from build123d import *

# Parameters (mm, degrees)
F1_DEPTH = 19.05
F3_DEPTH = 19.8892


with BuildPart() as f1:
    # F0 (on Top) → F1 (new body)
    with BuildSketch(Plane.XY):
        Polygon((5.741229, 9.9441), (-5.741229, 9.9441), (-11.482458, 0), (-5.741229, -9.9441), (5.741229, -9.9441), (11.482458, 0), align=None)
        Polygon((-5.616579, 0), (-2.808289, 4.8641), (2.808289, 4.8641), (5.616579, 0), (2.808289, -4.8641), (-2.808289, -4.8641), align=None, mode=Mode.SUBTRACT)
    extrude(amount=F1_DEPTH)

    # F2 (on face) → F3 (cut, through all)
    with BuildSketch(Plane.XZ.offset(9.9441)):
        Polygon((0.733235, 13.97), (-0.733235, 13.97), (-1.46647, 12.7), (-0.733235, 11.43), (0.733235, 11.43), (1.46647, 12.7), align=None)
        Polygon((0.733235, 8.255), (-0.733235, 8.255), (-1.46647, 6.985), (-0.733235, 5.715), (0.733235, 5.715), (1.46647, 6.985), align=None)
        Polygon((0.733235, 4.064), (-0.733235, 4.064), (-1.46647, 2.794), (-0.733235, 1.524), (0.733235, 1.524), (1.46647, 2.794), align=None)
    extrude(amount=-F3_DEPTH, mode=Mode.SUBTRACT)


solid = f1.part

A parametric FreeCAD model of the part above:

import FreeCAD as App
import Part
import Sketcher
from FreeCAD import Vector
Q = App.Units.Quantity

doc = App.newDocument("Part")
body = doc.addObject("PartDesign::Body", "Body")

sketch1 = doc.addObject("Sketcher::SketchObject", "Sketch")
body.addObject(sketch1)
sketch1.AttachmentSupport = (doc.XY_Plane, [""])
sketch1.MapMode = "FlatFace"
sketch1.addGeometry(Part.LineSegment(Vector(5.741229, 9.9441, 0), Vector(-5.741229, 9.9441, 0)), False)
sketch1.addGeometry(Part.LineSegment(Vector(-5.741229, 9.9441, 0), Vector(-11.482458, 0, 0)), False)
sketch1.addGeometry(Part.LineSegment(Vector(-11.482458, 0, 0), Vector(-5.741229, -9.9441, 0)), False)
sketch1.addGeometry(Part.LineSegment(Vector(-5.741229, -9.9441, 0), Vector(5.741229, -9.9441, 0)), False)
sketch1.addGeometry(Part.LineSegment(Vector(5.741229, -9.9441, 0), Vector(11.482458, 0, 0)), False)
sketch1.addGeometry(Part.LineSegment(Vector(11.482458, 0, 0), Vector(5.741229, 9.9441, 0)), False)
sketch1.addGeometry(Part.LineSegment(Vector(-2.808289, -4.8641, 0), Vector(-5.616579, 0, 0)), False)
sketch1.addGeometry(Part.LineSegment(Vector(-5.616579, 0, 0), Vector(-2.808289, 4.8641, 0)), False)
sketch1.addGeometry(Part.LineSegment(Vector(-2.808289, 4.8641, 0), Vector(2.808289, 4.8641, 0)), False)
sketch1.addGeometry(Part.LineSegment(Vector(2.808289, 4.8641, 0), Vector(5.616579, 0, 0)), False)
sketch1.addGeometry(Part.LineSegment(Vector(5.616579, 0, 0), Vector(2.808289, -4.8641, 0)), False)
sketch1.addGeometry(Part.LineSegment(Vector(2.808289, -4.8641, 0), Vector(-2.808289, -4.8641, 0)), False)
sketch1.addConstraint(Sketcher.Constraint("Coincident", 0, 2, 1, 1))
sketch1.addConstraint(Sketcher.Constraint("Coincident", 1, 2, 2, 1))
sketch1.addConstraint(Sketcher.Constraint("Coincident", 2, 2, 3, 1))
sketch1.addConstraint(Sketcher.Constraint("Coincident", 3, 2, 4, 1))
sketch1.addConstraint(Sketcher.Constraint("Coincident", 4, 2, 5, 1))
sketch1.addConstraint(Sketcher.Constraint("Coincident", 5, 2, 0, 1))
sketch1.addConstraint(Sketcher.Constraint("Coincident", 6, 2, 7, 1))
sketch1.addConstraint(Sketcher.Constraint("Coincident", 7, 2, 8, 1))
sketch1.addConstraint(Sketcher.Constraint("Coincident", 8, 2, 9, 1))
sketch1.addConstraint(Sketcher.Constraint("Coincident", 9, 2, 10, 1))
sketch1.addConstraint(Sketcher.Constraint("Coincident", 10, 2, 11, 1))
sketch1.addConstraint(Sketcher.Constraint("Coincident", 11, 2, 6, 1))
sketch1.addConstraint(Sketcher.Constraint("Horizontal", 0))
sketch1.addConstraint(Sketcher.Constraint("Horizontal", 3))
sketch1.addConstraint(Sketcher.Constraint("Horizontal", 8))
sketch1.addConstraint(Sketcher.Constraint("Horizontal", 11))
sketch1.addConstraint(Sketcher.Constraint("Symmetric", 0, 2, 3, 2, -1, 1))
sketch1.addConstraint(Sketcher.Constraint("Symmetric", 1, 2, 4, 2, -1, 1))
sketch1.addConstraint(Sketcher.Constraint("Symmetric", 6, 2, 9, 2, -1, 1))
sketch1.addConstraint(Sketcher.Constraint("Symmetric", 7, 2, 10, 2, -1, 1))
sketch1.addConstraint(Sketcher.Constraint("PointOnObject", 1, 2, -1))
sketch1.addConstraint(Sketcher.Constraint("PointOnObject", 6, 2, -1))
sketch1.addConstraint(Sketcher.Constraint("Parallel", 2, 5))
sketch1.addConstraint(Sketcher.Constraint("Parallel", 5, 6))
sketch1.addConstraint(Sketcher.Constraint("Parallel", 4, 7))
sketch1.addConstraint(Sketcher.Constraint("Parallel", 6, 9))
sketch1.addConstraint(Sketcher.Constraint("Vertical", 0, 2, 2, 2))
sketch1.addConstraint(Sketcher.Constraint("Angle", 1, Q("-120.000001 deg")))
sketch1.addConstraint(Sketcher.Constraint("DistanceY", 7, 2, 0, 2, Q("0.2 in")))
sketch1.addConstraint(Sketcher.Constraint("DistanceY", 2, 2, 0, 2, Q("0.783 in")))
sketch1.addConstraint(Sketcher.Constraint("DistanceX", 0, 2, 0, 1, 11.482458))
sketch1.addConstraint(Sketcher.Constraint("DistanceX", 8, 1, 8, 2, 5.616578))
pad1 = doc.addObject("PartDesign::Pad", "Pad")
body.addObject(pad1)
pad1.Profile = sketch1
pad1.Length = Q("0.75 in")

sketch2 = doc.addObject("Sketcher::SketchObject", "Sketch001")
body.addObject(sketch2)
sketch2.AttachmentSupport = (doc.XZ_Plane, [""])
sketch2.MapMode = "FlatFace"
sketch2.AttachmentOffset = App.Placement(Vector(0, 0, 0.3915 * 25.4), App.Rotation())
sketch2.addGeometry(Part.LineSegment(Vector(0.733235, 13.97, 0), Vector(-0.733235, 13.97, 0)), False)
sketch2.addGeometry(Part.LineSegment(Vector(-0.733235, 13.97, 0), Vector(-1.46647, 12.7, 0)), False)
sketch2.addGeometry(Part.LineSegment(Vector(-1.46647, 12.7, 0), Vector(-0.733235, 11.43, 0)), False)
sketch2.addGeometry(Part.LineSegment(Vector(-0.733235, 11.43, 0), Vector(0.733235, 11.43, 0)), False)
sketch2.addGeometry(Part.LineSegment(Vector(0.733235, 11.43, 0), Vector(1.46647, 12.7, 0)), False)
sketch2.addGeometry(Part.LineSegment(Vector(1.46647, 12.7, 0), Vector(0.733235, 13.97, 0)), False)
sketch2.addGeometry(Part.LineSegment(Vector(0.733235, 8.255, 0), Vector(-0.733235, 8.255, 0)), False)
sketch2.addGeometry(Part.LineSegment(Vector(-0.733235, 8.255, 0), Vector(-1.46647, 6.985, 0)), False)
sketch2.addGeometry(Part.LineSegment(Vector(-1.46647, 6.985, 0), Vector(-0.733235, 5.715, 0)), False)
sketch2.addGeometry(Part.LineSegment(Vector(-0.733235, 5.715, 0), Vector(0.733235, 5.715, 0)), False)
sketch2.addGeometry(Part.LineSegment(Vector(0.733235, 5.715, 0), Vector(1.46647, 6.985, 0)), False)
sketch2.addGeometry(Part.LineSegment(Vector(1.46647, 6.985, 0), Vector(0.733235, 8.255, 0)), False)
sketch2.addGeometry(Part.LineSegment(Vector(0.733235, 4.064, 0), Vector(-0.733235, 4.064, 0)), False)
sketch2.addGeometry(Part.LineSegment(Vector(-0.733235, 4.064, 0), Vector(-1.46647, 2.794, 0)), False)
sketch2.addGeometry(Part.LineSegment(Vector(-1.46647, 2.794, 0), Vector(-0.733235, 1.524, 0)), False)
sketch2.addGeometry(Part.LineSegment(Vector(-0.733235, 1.524, 0), Vector(0.733235, 1.524, 0)), False)
sketch2.addGeometry(Part.LineSegment(Vector(0.733235, 1.524, 0), Vector(1.46647, 2.794, 0)), False)
sketch2.addGeometry(Part.LineSegment(Vector(1.46647, 2.794, 0), Vector(0.733235, 4.064, 0)), False)
sketch2.addConstraint(Sketcher.Constraint("Coincident", 0, 2, 1, 1))
sketch2.addConstraint(Sketcher.Constraint("Coincident", 1, 2, 2, 1))
sketch2.addConstraint(Sketcher.Constraint("Coincident", 2, 2, 3, 1))
sketch2.addConstraint(Sketcher.Constraint("Coincident", 3, 2, 4, 1))
sketch2.addConstraint(Sketcher.Constraint("Coincident", 4, 2, 5, 1))
sketch2.addConstraint(Sketcher.Constraint("Coincident", 5, 2, 0, 1))
sketch2.addConstraint(Sketcher.Constraint("Coincident", 6, 2, 7, 1))
sketch2.addConstraint(Sketcher.Constraint("Coincident", 7, 2, 8, 1))
sketch2.addConstraint(Sketcher.Constraint("Coincident", 8, 2, 9, 1))
sketch2.addConstraint(Sketcher.Constraint("Coincident", 9, 2, 10, 1))
sketch2.addConstraint(Sketcher.Constraint("Coincident", 10, 2, 11, 1))
sketch2.addConstraint(Sketcher.Constraint("Coincident", 11, 2, 6, 1))
sketch2.addConstraint(Sketcher.Constraint("Coincident", 12, 2, 13, 1))
sketch2.addConstraint(Sketcher.Constraint("Coincident", 13, 2, 14, 1))
sketch2.addConstraint(Sketcher.Constraint("Coincident", 14, 2, 15, 1))
sketch2.addConstraint(Sketcher.Constraint("Coincident", 15, 2, 16, 1))
sketch2.addConstraint(Sketcher.Constraint("Coincident", 16, 2, 17, 1))
sketch2.addConstraint(Sketcher.Constraint("Coincident", 17, 2, 12, 1))
sketch2.addConstraint(Sketcher.Constraint("Horizontal", 0))
sketch2.addConstraint(Sketcher.Constraint("Horizontal", 3))
sketch2.addConstraint(Sketcher.Constraint("Horizontal", 6))
sketch2.addConstraint(Sketcher.Constraint("Horizontal", 9))
sketch2.addConstraint(Sketcher.Constraint("Horizontal", 12))
sketch2.addConstraint(Sketcher.Constraint("Horizontal", 15))
sketch2.addConstraint(Sketcher.Constraint("Symmetric", 1, 2, 4, 2, -2))
sketch2.addConstraint(Sketcher.Constraint("Symmetric", 7, 2, 10, 2, -2))
sketch2.addConstraint(Sketcher.Constraint("Symmetric", 13, 2, 16, 2, -2))
sketch2.addConstraint(Sketcher.Constraint("Parallel", 1, 4))
sketch2.addConstraint(Sketcher.Constraint("Parallel", 2, 5))
sketch2.addConstraint(Sketcher.Constraint("Parallel", 4, 7))
sketch2.addConstraint(Sketcher.Constraint("Parallel", 5, 8))
sketch2.addConstraint(Sketcher.Constraint("Parallel", 7, 10))
sketch2.addConstraint(Sketcher.Constraint("Parallel", 8, 11))
sketch2.addConstraint(Sketcher.Constraint("Parallel", 10, 13))
sketch2.addConstraint(Sketcher.Constraint("Parallel", 11, 14))
sketch2.addConstraint(Sketcher.Constraint("Parallel", 13, 16))
sketch2.addConstraint(Sketcher.Constraint("Parallel", 14, 17))
sketch2.addConstraint(Sketcher.Constraint("Vertical", 0, 2, 2, 2))
sketch2.addConstraint(Sketcher.Constraint("Vertical", 3, 2, 5, 2))
sketch2.addConstraint(Sketcher.Constraint("Vertical", 2, 2, 6, 2))
sketch2.addConstraint(Sketcher.Constraint("Vertical", 1, 2, 7, 2))
sketch2.addConstraint(Sketcher.Constraint("Vertical", 6, 2, 8, 2))
sketch2.addConstraint(Sketcher.Constraint("Vertical", 8, 2, 12, 2))
sketch2.addConstraint(Sketcher.Constraint("Vertical", 7, 2, 13, 2))
sketch2.addConstraint(Sketcher.Constraint("Vertical", 12, 2, 14, 2))
sketch2.addConstraint(Sketcher.Constraint("Angle", 1, Q("-120.000005 deg")))
sketch2.addConstraint(Sketcher.Constraint("DistanceY", -1, 1, 1, 2, Q("0.5 in")))
sketch2.addConstraint(Sketcher.Constraint("DistanceY", 2, 2, 0, 2, Q("0.1 in")))
sketch2.addConstraint(Sketcher.Constraint("DistanceY", -1, 1, 12, 2, Q("0.16 in")))
sketch2.addConstraint(Sketcher.Constraint("DistanceY", -1, 1, 6, 2, Q("0.325 in")))
sketch2.addConstraint(Sketcher.Constraint("DistanceX", 0, 2, 0, 1, 1.46647))
pocket1 = doc.addObject("PartDesign::Pocket", "Pocket")
body.addObject(pocket1)
pocket1.Profile = sketch2
pocket1.Type = "ThroughAll"

doc.recompute()
